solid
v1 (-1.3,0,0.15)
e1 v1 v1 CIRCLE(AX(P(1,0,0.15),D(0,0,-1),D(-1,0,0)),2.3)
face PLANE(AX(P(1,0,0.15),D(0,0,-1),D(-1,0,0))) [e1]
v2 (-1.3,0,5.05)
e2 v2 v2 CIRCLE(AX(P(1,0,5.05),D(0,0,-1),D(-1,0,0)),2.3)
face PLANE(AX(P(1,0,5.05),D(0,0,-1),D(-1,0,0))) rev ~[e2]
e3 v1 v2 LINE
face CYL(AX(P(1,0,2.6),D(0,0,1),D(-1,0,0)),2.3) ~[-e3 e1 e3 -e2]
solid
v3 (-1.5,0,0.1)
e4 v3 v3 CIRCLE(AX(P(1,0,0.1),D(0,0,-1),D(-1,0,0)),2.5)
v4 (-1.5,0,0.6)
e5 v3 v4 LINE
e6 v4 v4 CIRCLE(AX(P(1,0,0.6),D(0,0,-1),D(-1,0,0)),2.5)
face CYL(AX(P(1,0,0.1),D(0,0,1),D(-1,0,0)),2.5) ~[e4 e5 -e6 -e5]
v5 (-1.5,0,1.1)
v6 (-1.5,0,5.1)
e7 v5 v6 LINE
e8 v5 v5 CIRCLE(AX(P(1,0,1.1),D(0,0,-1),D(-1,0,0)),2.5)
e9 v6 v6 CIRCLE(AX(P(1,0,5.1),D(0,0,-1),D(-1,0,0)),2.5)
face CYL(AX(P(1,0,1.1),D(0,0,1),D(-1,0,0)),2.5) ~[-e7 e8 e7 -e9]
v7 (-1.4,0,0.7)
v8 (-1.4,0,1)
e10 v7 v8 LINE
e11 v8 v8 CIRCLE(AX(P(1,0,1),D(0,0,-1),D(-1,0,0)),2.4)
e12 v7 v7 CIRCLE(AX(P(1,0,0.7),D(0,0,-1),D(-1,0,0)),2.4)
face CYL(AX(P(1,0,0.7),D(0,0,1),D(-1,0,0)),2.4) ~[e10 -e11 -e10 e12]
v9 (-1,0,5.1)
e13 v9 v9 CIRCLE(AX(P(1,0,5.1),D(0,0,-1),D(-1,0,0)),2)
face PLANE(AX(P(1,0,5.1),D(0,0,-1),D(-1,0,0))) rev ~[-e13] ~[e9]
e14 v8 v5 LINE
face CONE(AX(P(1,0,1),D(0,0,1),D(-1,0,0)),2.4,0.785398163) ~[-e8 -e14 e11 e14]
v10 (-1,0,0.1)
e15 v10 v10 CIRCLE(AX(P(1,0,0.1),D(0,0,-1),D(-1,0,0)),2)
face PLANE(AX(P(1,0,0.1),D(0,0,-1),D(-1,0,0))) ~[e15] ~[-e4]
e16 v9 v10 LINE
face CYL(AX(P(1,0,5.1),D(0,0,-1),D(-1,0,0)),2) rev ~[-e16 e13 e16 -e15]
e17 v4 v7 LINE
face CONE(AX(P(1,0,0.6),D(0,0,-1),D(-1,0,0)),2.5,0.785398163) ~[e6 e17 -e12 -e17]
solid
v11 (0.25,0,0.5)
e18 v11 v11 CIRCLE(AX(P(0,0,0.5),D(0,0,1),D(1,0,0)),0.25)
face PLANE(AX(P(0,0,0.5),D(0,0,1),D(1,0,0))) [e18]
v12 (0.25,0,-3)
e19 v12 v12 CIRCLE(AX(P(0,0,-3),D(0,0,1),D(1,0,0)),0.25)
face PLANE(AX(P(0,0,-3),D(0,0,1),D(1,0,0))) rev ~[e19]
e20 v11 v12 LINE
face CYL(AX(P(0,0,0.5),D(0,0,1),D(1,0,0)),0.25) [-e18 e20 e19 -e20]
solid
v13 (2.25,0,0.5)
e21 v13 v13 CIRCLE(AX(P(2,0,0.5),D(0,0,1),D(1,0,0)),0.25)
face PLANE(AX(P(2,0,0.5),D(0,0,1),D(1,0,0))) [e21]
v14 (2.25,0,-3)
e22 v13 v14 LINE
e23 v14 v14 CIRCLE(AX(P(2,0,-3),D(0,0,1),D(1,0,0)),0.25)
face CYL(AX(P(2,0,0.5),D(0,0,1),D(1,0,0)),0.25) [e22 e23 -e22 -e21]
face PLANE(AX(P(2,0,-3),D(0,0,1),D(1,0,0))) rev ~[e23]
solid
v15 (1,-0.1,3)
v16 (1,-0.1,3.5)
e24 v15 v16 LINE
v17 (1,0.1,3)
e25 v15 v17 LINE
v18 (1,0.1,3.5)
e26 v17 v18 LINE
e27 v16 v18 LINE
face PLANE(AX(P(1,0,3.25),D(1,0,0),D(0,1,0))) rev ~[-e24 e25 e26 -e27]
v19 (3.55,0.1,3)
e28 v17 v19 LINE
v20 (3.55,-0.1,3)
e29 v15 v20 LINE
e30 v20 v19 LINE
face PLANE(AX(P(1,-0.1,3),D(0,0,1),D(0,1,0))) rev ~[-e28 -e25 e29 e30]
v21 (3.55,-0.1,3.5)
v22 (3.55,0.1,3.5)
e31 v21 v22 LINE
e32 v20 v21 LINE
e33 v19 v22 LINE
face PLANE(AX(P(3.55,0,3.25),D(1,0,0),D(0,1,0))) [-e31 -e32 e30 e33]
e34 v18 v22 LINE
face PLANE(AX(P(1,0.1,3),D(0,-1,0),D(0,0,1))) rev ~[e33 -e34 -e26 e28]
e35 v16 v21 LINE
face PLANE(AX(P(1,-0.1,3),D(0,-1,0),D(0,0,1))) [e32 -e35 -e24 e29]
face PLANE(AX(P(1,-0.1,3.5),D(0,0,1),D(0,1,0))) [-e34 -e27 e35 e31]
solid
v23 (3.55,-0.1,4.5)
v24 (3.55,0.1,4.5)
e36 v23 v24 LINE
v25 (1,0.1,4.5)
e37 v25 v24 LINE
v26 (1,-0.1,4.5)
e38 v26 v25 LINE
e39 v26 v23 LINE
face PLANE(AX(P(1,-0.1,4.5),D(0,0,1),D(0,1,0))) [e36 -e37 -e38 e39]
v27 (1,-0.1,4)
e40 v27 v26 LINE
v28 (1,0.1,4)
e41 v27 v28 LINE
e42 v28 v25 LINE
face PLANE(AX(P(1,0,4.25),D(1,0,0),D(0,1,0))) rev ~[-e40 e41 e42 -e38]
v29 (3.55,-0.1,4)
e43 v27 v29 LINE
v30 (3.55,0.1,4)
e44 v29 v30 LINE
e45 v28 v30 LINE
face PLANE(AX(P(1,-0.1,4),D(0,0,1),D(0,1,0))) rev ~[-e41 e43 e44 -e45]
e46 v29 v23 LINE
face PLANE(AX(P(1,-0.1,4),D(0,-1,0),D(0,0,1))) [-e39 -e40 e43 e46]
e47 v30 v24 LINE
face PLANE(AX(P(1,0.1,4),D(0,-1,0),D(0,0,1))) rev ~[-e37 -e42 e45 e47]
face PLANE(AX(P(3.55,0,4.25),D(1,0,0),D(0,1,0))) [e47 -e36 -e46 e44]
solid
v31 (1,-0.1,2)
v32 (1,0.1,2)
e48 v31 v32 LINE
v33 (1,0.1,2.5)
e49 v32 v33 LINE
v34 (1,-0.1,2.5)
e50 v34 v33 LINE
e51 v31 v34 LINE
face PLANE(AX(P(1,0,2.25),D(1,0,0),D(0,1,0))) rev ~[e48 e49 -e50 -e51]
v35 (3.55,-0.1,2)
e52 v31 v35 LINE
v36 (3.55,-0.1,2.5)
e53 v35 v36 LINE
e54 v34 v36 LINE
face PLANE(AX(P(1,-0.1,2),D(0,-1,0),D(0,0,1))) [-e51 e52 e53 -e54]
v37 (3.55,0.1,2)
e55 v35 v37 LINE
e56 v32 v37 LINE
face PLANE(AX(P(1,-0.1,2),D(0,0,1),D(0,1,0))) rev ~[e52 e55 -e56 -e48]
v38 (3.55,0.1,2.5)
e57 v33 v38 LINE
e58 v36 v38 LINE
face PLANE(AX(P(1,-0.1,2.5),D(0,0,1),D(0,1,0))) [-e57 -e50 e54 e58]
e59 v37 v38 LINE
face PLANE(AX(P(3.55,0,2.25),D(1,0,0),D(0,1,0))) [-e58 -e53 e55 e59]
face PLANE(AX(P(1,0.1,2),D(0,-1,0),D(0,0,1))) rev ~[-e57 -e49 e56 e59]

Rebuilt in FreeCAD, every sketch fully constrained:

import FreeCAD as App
import Part
import Sketcher
from FreeCAD import Vector
Q = App.Units.Quantity

doc = App.newDocument("Part")
body = doc.addObject("PartDesign::Body", "Body")

sketch1 = doc.addObject("Sketcher::SketchObject", "Sketch")
body.addObject(sketch1)
sketch1.AttachmentSupport = (doc.XZ_Plane, [""])
sketch1.MapMode = "FlatFace"
sketch1.addGeometry([
    Part.LineSegment(Vector(-1.5, 0.6, 0), Vector(-1.5, 0.1, 0)),
    Part.LineSegment(Vector(-1.5, 0.1, 0), Vector(-1, 0.1, 0)),
    Part.LineSegment(Vector(-1, 0.1, 0), Vector(-1, 5.1, 0)),
    Part.LineSegment(Vector(-1, 5.1, 0), Vector(-1.5, 5.1, 0)),
    Part.LineSegment(Vector(-1.5, 5.1, 0), Vector(-1.5, 1.1, 0)),
    Part.LineSegment(Vector(-1.5, 1.1, 0), Vector(-1.4, 1, 0)),
    Part.LineSegment(Vector(-1.4, 1, 0), Vector(-1.4, 0.7, 0)),
    Part.LineSegment(Vector(-1.4, 0.7, 0), Vector(-1.5, 0.6, 0)),
], False)
sketch1.addGeometry(Part.LineSegment(Vector(1, 5.1, 0), Vector(1, 0.1, 0)), True)
sketch1.addConstraint([
    Sketcher.Constraint("Coincident", 0, 2, 1, 1),
    Sketcher.Constraint("Coincident", 1, 2, 2, 1),
    Sketcher.Constraint("Coincident", 2, 2, 3, 1),
    Sketcher.Constraint("Coincident", 3, 2, 4, 1),
    Sketcher.Constraint("Coincident", 4, 2, 5, 1),
    Sketcher.Constraint("Coincident", 5, 2, 6, 1),
    Sketcher.Constraint("Coincident", 6, 2, 7, 1),
    Sketcher.Constraint("Coincident", 7, 2, 0, 1),
    Sketcher.Constraint("Vertical", 0),
    Sketcher.Constraint("Horizontal", 1),
    Sketcher.Constraint("Vertical", 2),
    Sketcher.Constraint("Horizontal", 3),
    Sketcher.Constraint("Vertical", 4),
    Sketcher.Constraint("Vertical", 6),
    Sketcher.Constraint("Vertical", 8),
    Sketcher.Constraint("Symmetric", 2, 2, 8, 1, -2),
    Sketcher.Constraint("Perpendicular", 5, 7),
    Sketcher.Constraint("Horizontal", 1, 2, 8, 2),
    Sketcher.Constraint("Vertical", 0, 2, 3, 2),
    Sketcher.Constraint("Equal", 3, 0),
    Sketcher.Constraint("Equal", 5, 7),
    Sketcher.Constraint("DistanceY", 2, 1, 2, 2, Q("5 mm")),
    Sketcher.Constraint("DistanceY", 4, 2, 4, 1, Q("4 mm")),
    Sketcher.Constraint("DistanceX", 1, 1, 1, 2, Q("0.5 mm")),
    Sketcher.Constraint("DistanceY", 6, 2, 6, 1, Q("0.3 mm")),
    Sketcher.Constraint("DistanceX", 1, 2, -1, 1, Q("1 mm")),
    Sketcher.Constraint("DistanceY", -1, 1, 5, 2, Q("1 mm")),
])
revolution = doc.addObject("PartDesign::Revolution", "Revolution")
body.addObject(revolution)
revolution.Profile = sketch1
revolution.ReferenceAxis = (sketch1, ["Axis0"])
revolution.Angle = 360
body2 = doc.addObject("PartDesign::Body", "Body001")

sketch2 = doc.addObject("Sketcher::SketchObject", "Sketch001")
body2.addObject(sketch2)
sketch2.AttachmentSupport = (doc.getObject("XZ_Plane001"), [""])
sketch2.MapMode = "FlatFace"
sketch2.addGeometry([
    Part.LineSegment(Vector(-1.3, 5, 0), Vector(-1.3, 0.1, 0)),
    Part.LineSegment(Vector(-1.3, 0.1, 0), Vector(1, 0.1, 0)),
    Part.LineSegment(Vector(1, 0.1, 0), Vector(1, 5, 0)),
    Part.LineSegment(Vector(1, 5, 0), Vector(-1.3, 5, 0)),
], False)
sketch2.addGeometry(Part.LineSegment(Vector(1, 5, 0), Vector(1, 0.1, 0)), True)
sketch2.addConstraint([
    Sketcher.Constraint("Coincident", 0, 2, 1, 1),
    Sketcher.Constraint("Coincident", 1, 2, 2, 1),
    Sketcher.Constraint("Coincident", 2, 2, 3, 1),
    Sketcher.Constraint("Coincident", 3, 2, 0, 1),
    Sketcher.Constraint("Vertical", 0),
    Sketcher.Constraint("Horizontal", 1),
    Sketcher.Constraint("Vertical", 2),
    Sketcher.Constraint("Horizontal", 3),
    Sketcher.Constraint("Vertical", 4),
    Sketcher.Constraint("Coincident", 4, 1, 2, 2),
    Sketcher.Constraint("Horizontal", 0, 2, 4, 2),
    Sketcher.Constraint("DistanceX", 1, 1, 1, 2, Q("2.3 mm")),
    Sketcher.Constraint("DistanceY", 0, 2, 0, 1, Q("4.9 mm")),
    Sketcher.Constraint("DistanceX", -1, 1, 1, 2, Q("1 mm")),
    Sketcher.Constraint("DistanceY", -1, 1, 0, 2, Q("0.15 mm")),
])
revolution2 = doc.addObject("PartDesign::Revolution", "Revolution001")
body2.addObject(revolution2)
revolution2.Profile = sketch2
revolution2.ReferenceAxis = (sketch2, ["Axis0"])
revolution2.Angle = 360
body3 = doc.addObject("PartDesign::Body", "Body002")
body3.AllowCompound = True

sketch3 = doc.addObject("Sketcher::SketchObject", "Sketch002")
body3.addObject(sketch3)
sketch3.AttachmentSupport = (doc.getObject("XY_Plane002"), [""])
sketch3.MapMode = "FlatFace"
sketch3.AttachmentOffset = App.Placement(Vector(0, 0, 0.5), App.Rotation())
sketch3.addGeometry([
    Part.Circle(Vector(0, 0, 0), Vector(0, 0, 1), 0.25),
    Part.Circle(Vector(2, 0, 0), Vector(0, 0, 1), 0.25),
], False)
sketch3.addConstraint([
    Sketcher.Constraint("Coincident", 0, 3, -1, 1),
    Sketcher.Constraint("Equal", 0, 1),
    Sketcher.Constraint("PointOnObject", 1, 3, -1),
    Sketcher.Constraint("Diameter", 0, Q("0.5 mm")),
    Sketcher.Constraint("DistanceX", -1, 1, 1, 3, Q("2 mm")),
])
pad1 = doc.addObject("PartDesign::Pad", "Pad")
body3.addObject(pad1)
pad1.Profile = sketch3
pad1.Length = 3.5
pad1.Reversed = True
body4 = doc.addObject("PartDesign::Body", "Body003")
body4.AllowCompound = True

sketch4 = doc.addObject("Sketcher::SketchObject", "Sketch003")
body4.addObject(sketch4)
sketch4.AttachmentSupport = (doc.getObject("YZ_Plane003"), [""])
sketch4.MapMode = "FlatFace"
sketch4.AttachmentOffset = App.Placement(Vector(0, 0, 1), App.Rotation())
sketch4.addGeometry([
    Part.LineSegment(Vector(-0.1, 2.5, 0), Vector(-0.1, 2, 0)),
    Part.LineSegment(Vector(-0.1, 2, 0), Vector(0.1, 2, 0)),
    Part.LineSegment(Vector(0.1, 2, 0), Vector(0.1, 2.5, 0)),
    Part.LineSegment(Vector(0.1, 2.5, 0), Vector(-0.1, 2.5, 0)),
    Part.LineSegment(Vector(-0.1, 3.5, 0), Vector(-0.1, 3, 0)),
    Part.LineSegment(Vector(-0.1, 3, 0), Vector(0.1, 3, 0)),
    Part.LineSegment(Vector(0.1, 3, 0), Vector(0.1, 3.5, 0)),
    Part.LineSegment(Vector(0.1, 3.5, 0), Vector(-0.1, 3.5, 0)),
    Part.LineSegment(Vector(-0.1, 4.5, 0), Vector(-0.1, 4, 0)),
    Part.LineSegment(Vector(-0.1, 4, 0), Vector(0.1, 4, 0)),
    Part.LineSegment(Vector(0.1, 4, 0), Vector(0.1, 4.5, 0)),
    Part.LineSegment(Vector(0.1, 4.5, 0), Vector(-0.1, 4.5, 0)),
], False)
sketch4.addConstraint([
    Sketcher.Constraint("Coincident", 0, 2, 1, 1),
    Sketcher.Constraint("Coincident", 1, 2, 2, 1),
    Sketcher.Constraint("Coincident", 2, 2, 3, 1),
    Sketcher.Constraint("Coincident", 3, 2, 0, 1),
    Sketcher.Constraint("Coincident", 4, 2, 5, 1),
    Sketcher.Constraint("Coincident", 5, 2, 6, 1),
    Sketcher.Constraint("Coincident", 6, 2, 7, 1),
    Sketcher.Constraint("Coincident", 7, 2, 4, 1),
    Sketcher.Constraint("Coincident", 8, 2, 9, 1),
    Sketcher.Constraint("Coincident", 9, 2, 10, 1),
    Sketcher.Constraint("Coincident", 10, 2, 11, 1),
    Sketcher.Constraint("Coincident", 11, 2, 8, 1),
    Sketcher.Constraint("Vertical", 0),
    Sketcher.Constraint("Horizontal", 1),
    Sketcher.Constraint("Vertical", 2),
    Sketcher.Constraint("Horizontal", 3),
    Sketcher.Constraint("Vertical", 4),
    Sketcher.Constraint("Horizontal", 5),
    Sketcher.Constraint("Vertical", 6),
    Sketcher.Constraint("Horizontal", 7),
    Sketcher.Constraint("Vertical", 8),
    Sketcher.Constraint("Horizontal", 9),
    Sketcher.Constraint("Vertical", 10),
    Sketcher.Constraint("Horizontal", 11),
    Sketcher.Constraint("Vertical", 3, 2, 4, 2),
    Sketcher.Constraint("Vertical", 2, 2, 5, 2),
    Sketcher.Constraint("Vertical", 7, 2, 8, 2),
    Sketcher.Constraint("Vertical", 6, 2, 9, 2),
    Sketcher.Constraint("Equal", 2, 4),
    Sketcher.Constraint("Equal", 6, 8),
    Sketcher.Constraint("DistanceX", 1, 1, 1, 2, Q("0.2 mm")),
    Sketcher.Constraint("DistanceY", 0, 2, 0, 1, Q("0.5 mm")),
    Sketcher.Constraint("DistanceY", -1, 1, 0, 2, Q("2 mm")),
    Sketcher.Constraint("DistanceY", -1, 1, 4, 2, Q("3 mm")),
    Sketcher.Constraint("DistanceY", -1, 1, 8, 2, Q("4 mm")),
    Sketcher.Constraint("DistanceX", 0, 2, -1, 1, Q("0.1 mm")),
])
pad2 = doc.addObject("PartDesign::Pad", "Pad001")
body4.addObject(pad2)
pad2.Profile = sketch4
pad2.Length = 2.55

doc.recompute()
